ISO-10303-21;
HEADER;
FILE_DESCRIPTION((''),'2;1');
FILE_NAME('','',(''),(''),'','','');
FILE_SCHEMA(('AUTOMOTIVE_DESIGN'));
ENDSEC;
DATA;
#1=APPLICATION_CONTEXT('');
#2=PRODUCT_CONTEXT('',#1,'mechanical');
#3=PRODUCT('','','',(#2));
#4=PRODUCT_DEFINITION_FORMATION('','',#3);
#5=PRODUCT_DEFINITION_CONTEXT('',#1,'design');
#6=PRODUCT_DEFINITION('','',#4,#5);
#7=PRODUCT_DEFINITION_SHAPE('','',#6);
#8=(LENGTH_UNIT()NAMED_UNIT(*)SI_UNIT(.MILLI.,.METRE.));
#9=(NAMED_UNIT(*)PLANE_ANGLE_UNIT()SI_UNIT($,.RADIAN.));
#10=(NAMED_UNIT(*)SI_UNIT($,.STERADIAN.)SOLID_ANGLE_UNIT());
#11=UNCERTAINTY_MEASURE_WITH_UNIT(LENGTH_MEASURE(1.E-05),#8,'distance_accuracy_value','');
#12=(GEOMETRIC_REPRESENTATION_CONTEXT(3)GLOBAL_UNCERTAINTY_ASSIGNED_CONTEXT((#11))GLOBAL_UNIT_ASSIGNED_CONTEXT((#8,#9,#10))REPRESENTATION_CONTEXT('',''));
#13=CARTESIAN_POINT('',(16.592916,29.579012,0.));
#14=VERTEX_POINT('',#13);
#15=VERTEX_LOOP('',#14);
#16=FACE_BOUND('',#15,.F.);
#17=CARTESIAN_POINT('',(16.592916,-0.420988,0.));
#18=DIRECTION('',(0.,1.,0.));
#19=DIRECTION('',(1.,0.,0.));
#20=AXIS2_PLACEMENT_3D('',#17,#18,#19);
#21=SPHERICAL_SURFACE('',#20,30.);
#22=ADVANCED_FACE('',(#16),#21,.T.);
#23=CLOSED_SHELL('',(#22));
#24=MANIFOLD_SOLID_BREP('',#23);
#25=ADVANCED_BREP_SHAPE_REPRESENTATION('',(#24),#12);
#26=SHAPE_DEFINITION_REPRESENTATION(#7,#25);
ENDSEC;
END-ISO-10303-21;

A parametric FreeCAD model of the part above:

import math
import FreeCAD as App
import Part
import Sketcher
from FreeCAD import Vector
Q = App.Units.Quantity

doc = App.newDocument("Part")
body = doc.addObject("PartDesign::Body", "Body")

sketch1 = body.newObject("Sketcher::SketchObject", "Sketch")
sketch1.AttachmentSupport = (doc.getObject("XY_Plane"), [""])
sketch1.MapMode = "FlatFace"
sketch1.addGeometry([
    Part.LineSegment(Vector(16.592916, 29.579012, 0), Vector(16.592916, -30.420988, 0)),
    Part.ArcOfCircle(Part.Circle(Vector(16.592916, -0.420988, 0), Vector(0, 0, 1), 30), math.radians(-90), math.radians(90)),
], False)
sketch1.addGeometry(Part.LineSegment(Vector(16.592916, 29.579012, 0), Vector(16.592916, -30.420988, 0)), True)
sketch1.addConstraint([
    Sketcher.Constraint("Coincident", 0, 1, 1, 2),
    Sketcher.Constraint("Coincident", 1, 1, 0, 2),
    Sketcher.Constraint("Vertical", 0),
    Sketcher.Constraint("Vertical", 2),
    Sketcher.Constraint("Coincident", 2, 1, 0, 1),
    Sketcher.Constraint("Vertical", 1, 3, 0, 1),
    Sketcher.Constraint("Equal", 0, 2),
    Sketcher.Constraint("Radius", 1, Q("30 mm")),
    Sketcher.Constraint("DistanceY", 1, 3, -1, 1, Q("0.420988 mm")),
    Sketcher.Constraint("DistanceX", -1, 1, 1, 3, Q("16.592916 mm")),
])
revolution = body.newObject("PartDesign::Revolution", "Revolution")
revolution.Profile = sketch1
revolution.ReferenceAxis = (sketch1, ["Axis0"])
revolution.Angle = 360

doc.recompute()
